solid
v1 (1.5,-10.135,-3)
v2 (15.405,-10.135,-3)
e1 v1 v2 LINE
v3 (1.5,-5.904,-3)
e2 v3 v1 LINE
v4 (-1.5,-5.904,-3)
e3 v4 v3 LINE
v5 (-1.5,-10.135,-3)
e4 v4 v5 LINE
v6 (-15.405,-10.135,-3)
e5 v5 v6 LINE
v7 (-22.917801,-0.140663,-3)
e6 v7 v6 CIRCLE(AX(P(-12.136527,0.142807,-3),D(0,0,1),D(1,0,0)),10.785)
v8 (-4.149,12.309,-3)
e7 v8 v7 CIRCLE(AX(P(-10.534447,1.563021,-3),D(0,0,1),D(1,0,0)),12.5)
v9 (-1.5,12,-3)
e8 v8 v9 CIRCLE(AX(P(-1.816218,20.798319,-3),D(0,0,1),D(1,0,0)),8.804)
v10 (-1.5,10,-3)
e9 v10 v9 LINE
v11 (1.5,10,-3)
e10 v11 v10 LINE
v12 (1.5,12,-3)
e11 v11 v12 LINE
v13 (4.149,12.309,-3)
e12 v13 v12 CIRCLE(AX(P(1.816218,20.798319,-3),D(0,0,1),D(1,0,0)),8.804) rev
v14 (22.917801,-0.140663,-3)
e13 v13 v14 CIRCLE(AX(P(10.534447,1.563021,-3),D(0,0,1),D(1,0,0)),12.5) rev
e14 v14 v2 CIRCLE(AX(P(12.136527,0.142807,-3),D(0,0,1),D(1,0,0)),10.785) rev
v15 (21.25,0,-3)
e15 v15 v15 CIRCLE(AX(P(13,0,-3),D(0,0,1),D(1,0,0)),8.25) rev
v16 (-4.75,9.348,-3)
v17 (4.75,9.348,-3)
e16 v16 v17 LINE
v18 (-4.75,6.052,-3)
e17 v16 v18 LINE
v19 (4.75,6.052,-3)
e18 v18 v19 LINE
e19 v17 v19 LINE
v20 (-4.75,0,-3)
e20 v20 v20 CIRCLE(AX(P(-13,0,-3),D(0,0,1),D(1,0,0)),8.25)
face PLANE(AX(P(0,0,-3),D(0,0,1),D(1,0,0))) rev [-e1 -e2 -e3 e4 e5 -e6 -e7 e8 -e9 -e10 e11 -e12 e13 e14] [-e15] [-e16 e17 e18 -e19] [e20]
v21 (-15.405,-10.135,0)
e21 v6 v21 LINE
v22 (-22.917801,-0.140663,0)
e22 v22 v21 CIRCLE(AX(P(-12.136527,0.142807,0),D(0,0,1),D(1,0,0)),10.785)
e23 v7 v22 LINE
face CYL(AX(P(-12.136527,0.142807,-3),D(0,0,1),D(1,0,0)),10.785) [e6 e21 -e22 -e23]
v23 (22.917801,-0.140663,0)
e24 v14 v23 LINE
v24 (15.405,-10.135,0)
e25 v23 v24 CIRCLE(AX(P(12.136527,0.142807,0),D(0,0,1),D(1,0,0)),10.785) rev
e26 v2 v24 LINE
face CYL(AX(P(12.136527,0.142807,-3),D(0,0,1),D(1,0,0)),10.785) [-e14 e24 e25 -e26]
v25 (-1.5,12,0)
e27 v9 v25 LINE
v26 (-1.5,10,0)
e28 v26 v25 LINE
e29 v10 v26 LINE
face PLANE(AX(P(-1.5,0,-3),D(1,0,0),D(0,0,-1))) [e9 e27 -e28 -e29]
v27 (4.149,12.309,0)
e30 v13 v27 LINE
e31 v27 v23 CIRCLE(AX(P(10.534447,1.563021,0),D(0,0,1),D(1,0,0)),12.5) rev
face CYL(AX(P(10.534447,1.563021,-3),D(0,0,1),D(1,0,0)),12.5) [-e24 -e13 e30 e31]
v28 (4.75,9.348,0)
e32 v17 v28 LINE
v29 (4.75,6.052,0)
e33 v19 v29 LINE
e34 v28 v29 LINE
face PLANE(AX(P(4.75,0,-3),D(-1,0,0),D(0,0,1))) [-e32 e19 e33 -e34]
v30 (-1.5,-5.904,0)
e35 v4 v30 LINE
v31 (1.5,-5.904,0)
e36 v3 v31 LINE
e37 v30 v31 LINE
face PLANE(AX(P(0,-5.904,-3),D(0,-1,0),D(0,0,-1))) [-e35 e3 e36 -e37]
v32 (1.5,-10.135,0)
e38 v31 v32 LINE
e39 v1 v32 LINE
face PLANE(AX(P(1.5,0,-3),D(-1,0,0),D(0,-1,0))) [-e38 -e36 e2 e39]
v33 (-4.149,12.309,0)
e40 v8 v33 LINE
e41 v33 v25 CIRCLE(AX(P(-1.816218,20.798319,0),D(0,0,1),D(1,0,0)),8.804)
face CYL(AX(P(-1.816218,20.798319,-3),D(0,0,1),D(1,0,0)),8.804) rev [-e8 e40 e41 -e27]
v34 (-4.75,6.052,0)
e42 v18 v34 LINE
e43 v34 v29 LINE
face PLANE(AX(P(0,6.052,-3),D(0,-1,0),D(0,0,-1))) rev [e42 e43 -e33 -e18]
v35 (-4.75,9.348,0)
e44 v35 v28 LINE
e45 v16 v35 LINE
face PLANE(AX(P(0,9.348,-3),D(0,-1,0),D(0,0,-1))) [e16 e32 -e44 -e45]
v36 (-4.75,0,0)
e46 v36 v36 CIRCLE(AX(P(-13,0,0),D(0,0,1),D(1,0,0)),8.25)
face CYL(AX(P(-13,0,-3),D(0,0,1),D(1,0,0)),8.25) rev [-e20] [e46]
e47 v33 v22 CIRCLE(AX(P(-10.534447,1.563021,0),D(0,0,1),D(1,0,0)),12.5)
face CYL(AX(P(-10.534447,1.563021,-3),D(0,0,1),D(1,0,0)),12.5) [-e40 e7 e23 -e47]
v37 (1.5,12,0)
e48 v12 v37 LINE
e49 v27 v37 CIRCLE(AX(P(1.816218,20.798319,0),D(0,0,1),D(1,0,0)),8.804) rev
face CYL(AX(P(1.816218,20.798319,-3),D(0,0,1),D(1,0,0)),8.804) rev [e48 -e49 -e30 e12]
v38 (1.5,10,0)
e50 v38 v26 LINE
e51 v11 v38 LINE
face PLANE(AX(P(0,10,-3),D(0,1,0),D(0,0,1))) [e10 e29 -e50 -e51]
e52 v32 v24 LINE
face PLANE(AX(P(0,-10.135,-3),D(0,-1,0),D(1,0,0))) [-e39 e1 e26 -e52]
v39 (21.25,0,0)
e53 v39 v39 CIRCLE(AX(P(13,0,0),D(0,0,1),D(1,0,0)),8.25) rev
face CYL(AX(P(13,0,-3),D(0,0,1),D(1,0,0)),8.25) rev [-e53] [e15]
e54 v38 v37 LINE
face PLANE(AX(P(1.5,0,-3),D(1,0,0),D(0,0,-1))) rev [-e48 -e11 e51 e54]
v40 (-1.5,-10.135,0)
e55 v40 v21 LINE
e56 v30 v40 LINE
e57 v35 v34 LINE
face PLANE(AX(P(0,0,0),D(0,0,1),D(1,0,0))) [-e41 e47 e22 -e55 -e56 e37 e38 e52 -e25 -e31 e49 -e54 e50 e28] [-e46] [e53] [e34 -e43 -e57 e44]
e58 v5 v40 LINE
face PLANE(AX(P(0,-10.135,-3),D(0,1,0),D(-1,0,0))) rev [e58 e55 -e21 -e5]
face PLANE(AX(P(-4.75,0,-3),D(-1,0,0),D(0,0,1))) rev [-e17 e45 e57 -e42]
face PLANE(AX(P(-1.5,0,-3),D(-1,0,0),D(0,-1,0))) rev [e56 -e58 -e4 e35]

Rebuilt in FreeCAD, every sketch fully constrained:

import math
import FreeCAD as App
import Part
import Sketcher

V = App.Vector
Q = App.Units.Quantity


def add_polygon(sketch, points):
    """Adds a closed chain of lines whose ends are joined by coincident constraints."""
    first, n = sketch.GeometryCount, len(points)
    for a, b in zip(points, points[1:] + points[:1]):
        sketch.addGeometry(Part.LineSegment(App.Vector(*a, 0), App.Vector(*b, 0)), False)
    for i in range(n):
        sketch.addConstraint(Sketcher.Constraint("Coincident", first + i, 2, first + (i + 1) % n, 1))

doc = App.newDocument("Part")
params = doc.addObject("Spreadsheet::Sheet", "Params")
for row, (alias, value) in enumerate([
    ("sketch1_diameter", "16.5 mm"),
    ("sketch1_radius", "12.5 mm"),
    ("sketch1_width", "3 mm"),
    ("sketch1_height", "2 mm"),
    ("sketch1_width2", "9.5 mm"),
    ("pad1_length", "3 mm"),
], start=1):
    params.set(f"A{row}", alias)
    params.set(f"B{row}", "=" + value)
    params.setAlias(f"B{row}", alias)

body = doc.addObject("PartDesign::Body", "Body")

sketch1 = body.newObject("Sketcher::SketchObject", "Sketch")
sketch1.AttachmentSupport = (doc.getObject("XY_Plane"), [""])
sketch1.MapMode = "FlatFace"
sketch1.addGeometry(Part.LineSegment(V(1.5, 12, 0), V(1.5, 10, 0)), False)
sketch1.addGeometry(Part.LineSegment(V(1.5, 10, 0), V(-1.5, 10, 0)), False)
sketch1.addGeometry(Part.LineSegment(V(-1.5, 10, 0), V(-1.5, 12, 0)), False)
sketch1.addGeometry(Part.ArcOfCircle(Part.Circle(V(-1.8, 20.8, 0), V(0, 0, 1), 8.8), math.radians(-105.37), math.radians(-87.94)), False)
sketch1.addGeometry(Part.ArcOfCircle(Part.Circle(V(-10.5, 1.6, 0), V(0, 0, 1), 12.5), math.radians(59), math.radians(188)), False)
sketch1.addGeometry(Part.ArcOfCircle(Part.Circle(V(-12.1, 0.1, 0), V(0, 0, 1), 10.8), math.radians(-178), math.radians(-108)), False)
sketch1.addGeometry(Part.LineSegment(V(-15.4, -10.1, 0), V(-1.5, -10.1, 0)), False)
sketch1.addGeometry(Part.LineSegment(V(-1.5, -10.1, 0), V(-1.5, -5.9, 0)), False)
sketch1.addGeometry(Part.LineSegment(V(-1.5, -5.9, 0), V(1.5, -5.9, 0)), False)
sketch1.addGeometry(Part.LineSegment(V(1.5, -5.9, 0), V(1.5, -10.1, 0)), False)
sketch1.addGeometry(Part.LineSegment(V(1.5, -10.1, 0), V(15.4, -10.1, 0)), False)
sketch1.addGeometry(Part.ArcOfCircle(Part.Circle(V(12.1, 0.1, 0), V(0, 0, 1), 10.8), math.radians(-72), math.radians(-2)), False)
sketch1.addGeometry(Part.ArcOfCircle(Part.Circle(V(10.5, 1.6, 0), V(0, 0, 1), 12.5), math.radians(-8), math.radians(121)), False)
sketch1.addGeometry(Part.ArcOfCircle(Part.Circle(V(1.8, 20.8, 0), V(0, 0, 1), 8.8), math.radians(-92.06), math.radians(-74.63)), False)
sketch1.addGeometry(Part.Circle(V(-13, 0, 0), V(0, 0, 1), 8.2), False)
sketch1.addGeometry(Part.Circle(V(13, 0, 0), V(0, 0, 1), 8.2), False)
add_polygon(sketch1, [(4.8, 6.1), (-4.8, 6.1), (-4.8, 9.3), (4.8, 9.3)])
sketch1.addConstraint([
    Sketcher.Constraint("Coincident", 0, 2, 1, 1),
    Sketcher.Constraint("Coincident", 1, 2, 2, 1),
    Sketcher.Constraint("Coincident", 2, 2, 3, 2),
    Sketcher.Constraint("Coincident", 3, 1, 4, 1),
    Sketcher.Constraint("Coincident", 4, 2, 5, 1),
    Sketcher.Constraint("Coincident", 5, 2, 6, 1),
    Sketcher.Constraint("Coincident", 6, 2, 7, 1),
    Sketcher.Constraint("Coincident", 7, 2, 8, 1),
    Sketcher.Constraint("Coincident", 8, 2, 9, 1),
    Sketcher.Constraint("Coincident", 9, 2, 10, 1),
    Sketcher.Constraint("Coincident", 10, 2, 11, 1),
    Sketcher.Constraint("Coincident", 11, 2, 12, 1),
    Sketcher.Constraint("Coincident", 12, 2, 13, 2),
    Sketcher.Constraint("Coincident", 13, 1, 0, 1),
    Sketcher.Constraint("Vertical", 0),
    Sketcher.Constraint("Horizontal", 1),
    Sketcher.Constraint("Vertical", 2),
    Sketcher.Constraint("Horizontal", 6),
    Sketcher.Constraint("Vertical", 7),
    Sketcher.Constraint("Horizontal", 8),
    Sketcher.Constraint("Vertical", 9),
    Sketcher.Constraint("Horizontal", 10),
    Sketcher.Constraint("Horizontal", 16),
    Sketcher.Constraint("Vertical", 17),
    Sketcher.Constraint("Horizontal", 18),
    Sketcher.Constraint("Vertical", 19),
    Sketcher.Constraint("Equal", 5, 11),
    Sketcher.Constraint("Equal", 4, 12),
    Sketcher.Constraint("Equal", 3, 13),
    Sketcher.Constraint("Equal", 14, 15),
    Sketcher.Constraint("Symmetric", 14, 3, 15, 3, -1, 1),
    Sketcher.Constraint("Symmetric", 5, 3, 11, 3, -2),
    Sketcher.Constraint("Symmetric", 4, 3, 12, 3, -2),
    Sketcher.Constraint("Symmetric", 3, 3, 13, 3, -2),
    Sketcher.Constraint("Symmetric", 6, 2, 9, 2, -2),
    Sketcher.Constraint("PointOnObject", 14, 3, -1),
    Sketcher.Constraint("Horizontal", 2, 2, 13, 1),
    Sketcher.Constraint("Vertical", 2, 2, 6, 2),
    Sketcher.Constraint("Diameter", 14, Q("16.5 mm")),
    Sketcher.Constraint("Radius", 4, Q("12.5 mm")),
    Sketcher.Constraint("DistanceX", 1, 2, 1, 1, Q("3 mm")),
    Sketcher.Constraint("DistanceY", 0, 2, 0, 1, Q("2 mm")),
    Sketcher.Constraint("DistanceX", 16, 2, 16, 1, Q("9.5 mm")),
    Sketcher.Constraint("DistanceX", 14, 3, -1, 1, Q("13 mm")),
    Sketcher.Constraint("DistanceY", -1, 1, 0, 2, Q("10 mm")),
    Sketcher.Constraint("Radius", 3, Q("8.804 mm")),
    Sketcher.Constraint("Radius", 5, Q("10.785 mm")),
    Sketcher.Constraint("DistanceX", 6, 1, 6, 2, Q("13.905 mm")),
    Sketcher.Constraint("DistanceY", 7, 1, 7, 2, Q("4.231 mm")),
    Sketcher.Constraint("DistanceY", 17, 1, 17, 2, Q("3.296 mm")),
    Sketcher.Constraint("DistanceX", 16, 2, -1, 1, Q("4.75 mm")),
    Sketcher.Constraint("DistanceX", 3, 1, -1, 1, Q("4.149 mm")),
    Sketcher.Constraint("DistanceY", -1, 1, 3, 1, Q("12.309 mm")),
    Sketcher.Constraint("DistanceY", 5, 2, -1, 1, Q("10.135 mm")),
    Sketcher.Constraint("DistanceY", -1, 1, 16, 2, Q("6.052 mm")),
    Sketcher.Constraint("DistanceX", 4, 2, -1, 1, Q("22.917801 mm")),
    Sketcher.Constraint("DistanceY", 4, 3, 3, 3, Q("19.235298 mm")),
])
sketch1.setExpression("Constraints[42]", "Params.sketch1_diameter")
sketch1.setExpression("Constraints[43]", "Params.sketch1_radius")
sketch1.setExpression("Constraints[44]", "Params.sketch1_width")
sketch1.setExpression("Constraints[45]", "Params.sketch1_height")
sketch1.setExpression("Constraints[46]", "Params.sketch1_width2")
pad1 = body.newObject("PartDesign::Pad", "Pad")
pad1.Profile = sketch1
pad1.setExpression("Length", "Params.pad1_length")
pad1.Reversed = True

doc.recompute()
